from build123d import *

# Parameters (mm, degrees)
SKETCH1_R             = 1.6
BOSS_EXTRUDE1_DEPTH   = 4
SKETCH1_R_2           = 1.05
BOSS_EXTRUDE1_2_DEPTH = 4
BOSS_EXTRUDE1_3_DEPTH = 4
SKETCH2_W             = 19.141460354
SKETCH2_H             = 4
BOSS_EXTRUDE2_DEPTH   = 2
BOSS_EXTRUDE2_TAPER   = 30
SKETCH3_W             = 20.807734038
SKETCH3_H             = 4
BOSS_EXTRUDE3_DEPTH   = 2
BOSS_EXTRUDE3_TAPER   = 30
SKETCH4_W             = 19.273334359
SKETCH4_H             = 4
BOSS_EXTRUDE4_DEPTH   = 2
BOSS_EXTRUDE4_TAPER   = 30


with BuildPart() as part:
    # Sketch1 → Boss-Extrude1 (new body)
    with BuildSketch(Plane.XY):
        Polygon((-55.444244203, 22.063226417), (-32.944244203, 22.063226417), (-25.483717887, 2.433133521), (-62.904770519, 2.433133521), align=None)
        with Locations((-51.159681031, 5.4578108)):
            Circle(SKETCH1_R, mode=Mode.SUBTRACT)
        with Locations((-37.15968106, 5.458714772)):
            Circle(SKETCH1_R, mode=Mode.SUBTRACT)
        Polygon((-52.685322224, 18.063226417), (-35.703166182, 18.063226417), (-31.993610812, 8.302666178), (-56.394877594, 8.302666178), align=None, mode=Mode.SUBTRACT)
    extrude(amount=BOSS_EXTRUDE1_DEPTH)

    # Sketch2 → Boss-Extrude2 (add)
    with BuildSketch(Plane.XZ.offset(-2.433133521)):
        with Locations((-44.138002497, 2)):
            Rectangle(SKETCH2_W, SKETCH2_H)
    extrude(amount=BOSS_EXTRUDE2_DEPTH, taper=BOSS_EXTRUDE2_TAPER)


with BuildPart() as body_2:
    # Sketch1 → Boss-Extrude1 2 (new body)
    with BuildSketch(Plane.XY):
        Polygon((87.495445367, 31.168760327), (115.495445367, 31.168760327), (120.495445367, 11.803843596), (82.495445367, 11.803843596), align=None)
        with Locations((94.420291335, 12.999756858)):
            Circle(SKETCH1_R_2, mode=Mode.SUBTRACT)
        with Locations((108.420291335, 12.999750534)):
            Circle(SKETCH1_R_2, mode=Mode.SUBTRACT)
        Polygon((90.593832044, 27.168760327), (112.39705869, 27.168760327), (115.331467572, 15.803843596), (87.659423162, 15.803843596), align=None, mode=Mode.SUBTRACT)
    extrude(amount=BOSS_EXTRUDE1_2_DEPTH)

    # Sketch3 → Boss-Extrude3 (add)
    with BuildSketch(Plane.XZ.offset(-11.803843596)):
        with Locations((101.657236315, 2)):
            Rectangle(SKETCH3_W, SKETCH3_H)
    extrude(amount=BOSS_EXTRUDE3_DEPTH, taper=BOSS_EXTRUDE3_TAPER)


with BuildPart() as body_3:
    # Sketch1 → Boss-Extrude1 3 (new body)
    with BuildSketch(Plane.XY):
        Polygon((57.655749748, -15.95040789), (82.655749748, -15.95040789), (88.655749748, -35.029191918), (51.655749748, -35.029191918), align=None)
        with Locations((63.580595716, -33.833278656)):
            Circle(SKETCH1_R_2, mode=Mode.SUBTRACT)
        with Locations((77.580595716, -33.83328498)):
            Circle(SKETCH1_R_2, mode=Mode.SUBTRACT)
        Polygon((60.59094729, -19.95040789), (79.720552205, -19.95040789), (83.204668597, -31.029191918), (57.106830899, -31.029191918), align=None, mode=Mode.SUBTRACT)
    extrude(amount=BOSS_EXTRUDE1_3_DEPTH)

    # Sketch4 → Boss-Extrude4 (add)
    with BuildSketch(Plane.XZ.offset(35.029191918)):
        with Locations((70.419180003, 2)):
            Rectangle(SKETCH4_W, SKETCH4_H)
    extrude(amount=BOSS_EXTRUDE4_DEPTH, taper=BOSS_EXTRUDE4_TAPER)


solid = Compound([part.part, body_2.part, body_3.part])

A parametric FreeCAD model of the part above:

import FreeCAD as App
import Part
import Sketcher

V = App.Vector
Q = App.Units.Quantity


def add_polygon(sketch, points):
    """Adds a closed chain of lines whose ends are joined by coincident constraints."""
    first, n = sketch.GeometryCount, len(points)
    for a, b in zip(points, points[1:] + points[:1]):
        sketch.addGeometry(Part.LineSegment(App.Vector(*a, 0), App.Vector(*b, 0)), False)
    for i in range(n):
        sketch.addConstraint(Sketcher.Constraint("Coincident", first + i, 2, first + (i + 1) % n, 1))

doc = App.newDocument("Part")
body = doc.addObject("PartDesign::Body", "Body")

# Sketch on XY plane
sketch1 = body.newObject("Sketcher::SketchObject", "Sketch")
sketch1.AttachmentSupport = (doc.getObject("XY_Plane"), [""])
sketch1.MapMode = "FlatFace"
add_polygon(sketch1, [(-32.944244, 22.063226), (-55.444244, 22.063226), (-62.904771, 2.433134), (-25.483718, 2.433134)])  # lines 0-3
sketch1.addGeometry(Part.Circle(V(-37.159681, 5.458715, 0), V(0, 0, 1), 1.6), False)  # 4
sketch1.addGeometry(Part.Circle(V(-51.159681, 5.457811, 0), V(0, 0, 1), 1.6), False)  # 5
add_polygon(sketch1, [(-52.685322, 18.063226), (-35.703166, 18.063226), (-31.993611, 8.302666), (-56.394878, 8.302666)])  # lines 6-9
sketch1.addConstraint(Sketcher.Constraint("Horizontal", 0))
sketch1.addConstraint(Sketcher.Constraint("Horizontal", 2))
sketch1.addConstraint(Sketcher.Constraint("Horizontal", 6))
sketch1.addConstraint(Sketcher.Constraint("Horizontal", 8))
sketch1.addConstraint(Sketcher.Constraint("Equal", 4, 5))
sketch1.addConstraint(Sketcher.Constraint("Parallel", 3, 7))
sketch1.addConstraint(Sketcher.Constraint("Parallel", 1, 9))
sketch1.addConstraint(Sketcher.Constraint("Equal", 1, 3))
sketch1.addConstraint(Sketcher.Constraint("Diameter", 4, Q("3.2 mm")))
sketch1.addConstraint(Sketcher.Constraint("Distance", 1, Q("21 mm")))
sketch1.addConstraint(Sketcher.Constraint("DistanceX", 0, 2, 0, 1, Q("22.5 mm")))
sketch1.addConstraint(Sketcher.Constraint("DistanceX", 5, 3, 4, 3, Q("14 mm")))
sketch1.addConstraint(Sketcher.Constraint("DistanceY", 6, 2, 3, 2, Q("4 mm")))
sketch1.addConstraint(Sketcher.Constraint("Distance", 7, Q("10.441711 mm")))
sketch1.addConstraint(Sketcher.Constraint("DistanceX", 2, 1, 2, 2, Q("37.421053 mm")))
sketch1.addConstraint(Sketcher.Constraint("DistanceX", 6, 1, 6, 2, Q("16.982156 mm")))
sketch1.addConstraint(Sketcher.Constraint("DistanceX", 4, 3, -1, 1, Q("37.159681 mm")))
sketch1.addConstraint(Sketcher.Constraint("DistanceY", -1, 1, 5, 3, Q("5.457811 mm")))
sketch1.addConstraint(Sketcher.Constraint("DistanceX", 1, 2, -1, 1, Q("62.904771 mm")))
sketch1.addConstraint(Sketcher.Constraint("DistanceX", 7, 2, -1, 1, Q("31.993611 mm")))
sketch1.addConstraint(Sketcher.Constraint("DistanceY", 4, 3, 0, 2, Q("16.604512 mm")))
sketch1.addConstraint(Sketcher.Constraint("DistanceY", -1, 1, 4, 3, Q("5.458715 mm")))
pad1 = body.newObject("PartDesign::Pad", "Pad")
pad1.Profile = sketch1
pad1.Length = 4

# Sketch on XZ plane
sketch2 = body.newObject("Sketcher::SketchObject", "Sketch001")
sketch2.AttachmentSupport = (doc.getObject("XZ_Plane"), [""])
sketch2.MapMode = "FlatFace"
sketch2.AttachmentOffset = App.Placement(V(0, 0, -2.433134), App.Rotation())
add_polygon(sketch2, [(-53.708733, 4), (-53.708733, 0), (-34.567272, 0), (-34.567272, 4)])  # lines 0-3
sketch2.addConstraint(Sketcher.Constraint("Vertical", 0))
sketch2.addConstraint(Sketcher.Constraint("Horizontal", 1))
sketch2.addConstraint(Sketcher.Constraint("Vertical", 2))
sketch2.addConstraint(Sketcher.Constraint("Horizontal", 3))
sketch2.addConstraint(Sketcher.Constraint("PointOnObject", 0, 2, -1))
sketch2.addConstraint(Sketcher.Constraint("DistanceY", 0, 2, 0, 1, Q("4 mm")))
sketch2.addConstraint(Sketcher.Constraint("DistanceX", 1, 1, 1, 2, Q("19.14146 mm")))
sketch2.addConstraint(Sketcher.Constraint("DistanceX", 0, 2, -1, 1, Q("53.708733 mm")))
pad2 = body.newObject("PartDesign::Pad", "Pad001")
pad2.Profile = sketch2
pad2.Length = 2
pad2.TaperAngle = -30
body2 = doc.addObject("PartDesign::Body", "Body001")

# Sketch on XY plane
sketch3 = body2.newObject("Sketcher::SketchObject", "Sketch002")
sketch3.AttachmentSupport = (doc.getObject("XY_Plane001"), [""])
sketch3.MapMode = "FlatFace"
add_polygon(sketch3, [(115.495445, 31.16876), (87.495445, 31.16876), (82.495445, 11.803844), (120.495445, 11.803844)])  # lines 0-3
sketch3.addGeometry(Part.Circle(V(108.420291, 12.999751, 0), V(0, 0, 1), 1.05), False)  # 4
sketch3.addGeometry(Part.Circle(V(94.420291, 12.999757, 0), V(0, 0, 1), 1.05), False)  # 5
add_polygon(sketch3, [(90.593832, 27.16876), (112.397059, 27.16876), (115.331468, 15.803844), (87.659423, 15.803844)])  # lines 6-9
sketch3.addConstraint(Sketcher.Constraint("Horizontal", 0))
sketch3.addConstraint(Sketcher.Constraint("Horizontal", 2))
sketch3.addConstraint(Sketcher.Constraint("Horizontal", 6))
sketch3.addConstraint(Sketcher.Constraint("Horizontal", 8))
sketch3.addConstraint(Sketcher.Constraint("Equal", 4, 5))
sketch3.addConstraint(Sketcher.Constraint("Parallel", 3, 7))
sketch3.addConstraint(Sketcher.Constraint("Parallel", 1, 9))
sketch3.addConstraint(Sketcher.Constraint("Equal", 1, 3))
sketch3.addConstraint(Sketcher.Constraint("Diameter", 4, Q("2.1 mm")))
sketch3.addConstraint(Sketcher.Constraint("DistanceX", 0, 2, 0, 1, Q("28 mm")))
sketch3.addConstraint(Sketcher.Constraint("DistanceX", 2, 1, 2, 2, Q("38 mm")))
sketch3.addConstraint(Sketcher.Constraint("Distance", 1, Q("20 mm")))
sketch3.addConstraint(Sketcher.Constraint("DistanceX", 5, 3, 4, 3, Q("14 mm")))
sketch3.addConstraint(Sketcher.Constraint("DistanceY", 6, 2, 3, 2, Q("4 mm")))
sketch3.addConstraint(Sketcher.Constraint("DistanceY", 2, 2, 7, 2, Q("4 mm")))
sketch3.addConstraint(Sketcher.Constraint("DistanceX", 6, 1, 6, 2, Q("21.803227 mm")))
sketch3.addConstraint(Sketcher.Constraint("DistanceX", -1, 1, 4, 3, Q("108.420291 mm")))
sketch3.addConstraint(Sketcher.Constraint("DistanceY", -1, 1, 4, 3, Q("12.999751 mm")))
sketch3.addConstraint(Sketcher.Constraint("DistanceY", -1, 1, 0, 2, Q("31.16876 mm")))
sketch3.addConstraint(Sketcher.Constraint("DistanceX", -1, 1, 6, 2, Q("112.397059 mm")))
sketch3.addConstraint(Sketcher.Constraint("DistanceY", -1, 1, 5, 3, Q("12.999757 mm")))
sketch3.addConstraint(Sketcher.Constraint("DistanceX", -1, 1, 0, 2, Q("87.495445 mm")))
pad3 = body2.newObject("PartDesign::Pad", "Pad002")
pad3.Profile = sketch3
pad3.Length = 4

# Sketch on XZ plane
sketch4 = body2.newObject("Sketcher::SketchObject", "Sketch003")
sketch4.AttachmentSupport = (doc.getObject("XZ_Plane001"), [""])
sketch4.MapMode = "FlatFace"
sketch4.AttachmentOffset = App.Placement(V(0, 0, -11.803844), App.Rotation())
add_polygon(sketch4, [(91.253369, 4), (91.253369, 0), (112.061103, 0), (112.061103, 4)])  # lines 0-3
sketch4.addConstraint(Sketcher.Constraint("Vertical", 0))
sketch4.addConstraint(Sketcher.Constraint("Horizontal", 1))
sketch4.addConstraint(Sketcher.Constraint("Vertical", 2))
sketch4.addConstraint(Sketcher.Constraint("Horizontal", 3))
sketch4.addConstraint(Sketcher.Constraint("PointOnObject", 0, 2, -1))
sketch4.addConstraint(Sketcher.Constraint("DistanceY", 0, 2, 0, 1, Q("4 mm")))
sketch4.addConstraint(Sketcher.Constraint("DistanceX", 1, 1, 1, 2, Q("20.807734 mm")))
sketch4.addConstraint(Sketcher.Constraint("DistanceX", -1, 1, 0, 2, Q("91.253369 mm")))
pad4 = body2.newObject("PartDesign::Pad", "Pad003")
pad4.Profile = sketch4
pad4.Length = 2
pad4.TaperAngle = -30
body3 = doc.addObject("PartDesign::Body", "Body002")

# Sketch on XY plane
sketch5 = body3.newObject("Sketcher::SketchObject", "Sketch004")
sketch5.AttachmentSupport = (doc.getObject("XY_Plane002"), [""])
sketch5.MapMode = "FlatFace"
add_polygon(sketch5, [(82.65575, -15.950408), (57.65575, -15.950408), (51.65575, -35.029192), (88.65575, -35.029192)])  # lines 0-3
sketch5.addGeometry(Part.Circle(V(77.580596, -33.833285, 0), V(0, 0, 1), 1.05), False)  # 4
sketch5.addGeometry(Part.Circle(V(63.580596, -33.833279, 0), V(0, 0, 1), 1.05), False)  # 5
add_polygon(sketch5, [(60.590947, -19.950408), (79.720552, -19.950408), (83.204669, -31.029192), (57.106831, -31.029192)])  # lines 6-9
sketch5.addConstraint(Sketcher.Constraint("Horizontal", 0))
sketch5.addConstraint(Sketcher.Constraint("Horizontal", 2))
sketch5.addConstraint(Sketcher.Constraint("Horizontal", 6))
sketch5.addConstraint(Sketcher.Constraint("Horizontal", 8))
sketch5.addConstraint(Sketcher.Constraint("Equal", 4, 5))
sketch5.addConstraint(Sketcher.Constraint("Parallel", 3, 7))
sketch5.addConstraint(Sketcher.Constraint("Parallel", 1, 9))
sketch5.addConstraint(Sketcher.Constraint("Equal", 1, 3))
sketch5.addConstraint(Sketcher.Constraint("Diameter", 4, Q("2.1 mm")))
sketch5.addConstraint(Sketcher.Constraint("DistanceX", 0, 2, 0, 1, Q("25 mm")))
sketch5.addConstraint(Sketcher.Constraint("DistanceX", 2, 1, 2, 2, Q("37 mm")))
sketch5.addConstraint(Sketcher.Constraint("Distance", 1, Q("20 mm")))
sketch5.addConstraint(Sketcher.Constraint("DistanceX", 5, 3, 4, 3, Q("14 mm")))
sketch5.addConstraint(Sketcher.Constraint("DistanceY", 6, 2, 3, 2, Q("4 mm")))
sketch5.addConstraint(Sketcher.Constraint("DistanceY", 2, 2, 7, 2, Q("4 mm")))
sketch5.addConstraint(Sketcher.Constraint("DistanceX", 6, 1, 6, 2, Q("19.129605 mm")))
sketch5.addConstraint(Sketcher.Constraint("DistanceY", 5, 3, -1, 1, Q("33.833279 mm")))
sketch5.addConstraint(Sketcher.Constraint("DistanceX", -1, 1, 0, 2, Q("57.65575 mm")))
sketch5.addConstraint(Sketcher.Constraint("DistanceY", 1, 2, -1, 1, Q("35.029192 mm")))
sketch5.addConstraint(Sketcher.Constraint("DistanceX", -1, 1, 7, 2, Q("83.204669 mm")))
sketch5.addConstraint(Sketcher.Constraint("DistanceX", 9, 2, 5, 3, Q("2.989648 mm")))
sketch5.addConstraint(Sketcher.Constraint("DistanceY", 4, 3, -1, 1, Q("33.833285 mm")))
pad5 = body3.newObject("PartDesign::Pad", "Pad004")
pad5.Profile = sketch5
pad5.Length = 4

# Sketch on XZ plane
sketch6 = body3.newObject("Sketcher::SketchObject", "Sketch005")
sketch6.AttachmentSupport = (doc.getObject("XZ_Plane002"), [""])
sketch6.MapMode = "FlatFace"
sketch6.AttachmentOffset = App.Placement(V(0, 0, 35.029192), App.Rotation())
add_polygon(sketch6, [(60.782513, 4), (60.782513, 0), (80.055847, 0), (80.055847, 4)])  # lines 0-3
sketch6.addConstraint(Sketcher.Constraint("Vertical", 0))
sketch6.addConstraint(Sketcher.Constraint("Horizontal", 1))
sketch6.addConstraint(Sketcher.Constraint("Vertical", 2))
sketch6.addConstraint(Sketcher.Constraint("Horizontal", 3))
sketch6.addConstraint(Sketcher.Constraint("PointOnObject", 0, 2, -1))
sketch6.addConstraint(Sketcher.Constraint("DistanceY", 0, 2, 0, 1, Q("4 mm")))
sketch6.addConstraint(Sketcher.Constraint("DistanceX", 1, 1, 1, 2, Q("19.273334 mm")))
sketch6.addConstraint(Sketcher.Constraint("DistanceX", -1, 1, 0, 2, Q("60.782513 mm")))
pad6 = body3.newObject("PartDesign::Pad", "Pad005")
pad6.Profile = sketch6
pad6.Length = 2
pad6.TaperAngle = -30

doc.recompute()
